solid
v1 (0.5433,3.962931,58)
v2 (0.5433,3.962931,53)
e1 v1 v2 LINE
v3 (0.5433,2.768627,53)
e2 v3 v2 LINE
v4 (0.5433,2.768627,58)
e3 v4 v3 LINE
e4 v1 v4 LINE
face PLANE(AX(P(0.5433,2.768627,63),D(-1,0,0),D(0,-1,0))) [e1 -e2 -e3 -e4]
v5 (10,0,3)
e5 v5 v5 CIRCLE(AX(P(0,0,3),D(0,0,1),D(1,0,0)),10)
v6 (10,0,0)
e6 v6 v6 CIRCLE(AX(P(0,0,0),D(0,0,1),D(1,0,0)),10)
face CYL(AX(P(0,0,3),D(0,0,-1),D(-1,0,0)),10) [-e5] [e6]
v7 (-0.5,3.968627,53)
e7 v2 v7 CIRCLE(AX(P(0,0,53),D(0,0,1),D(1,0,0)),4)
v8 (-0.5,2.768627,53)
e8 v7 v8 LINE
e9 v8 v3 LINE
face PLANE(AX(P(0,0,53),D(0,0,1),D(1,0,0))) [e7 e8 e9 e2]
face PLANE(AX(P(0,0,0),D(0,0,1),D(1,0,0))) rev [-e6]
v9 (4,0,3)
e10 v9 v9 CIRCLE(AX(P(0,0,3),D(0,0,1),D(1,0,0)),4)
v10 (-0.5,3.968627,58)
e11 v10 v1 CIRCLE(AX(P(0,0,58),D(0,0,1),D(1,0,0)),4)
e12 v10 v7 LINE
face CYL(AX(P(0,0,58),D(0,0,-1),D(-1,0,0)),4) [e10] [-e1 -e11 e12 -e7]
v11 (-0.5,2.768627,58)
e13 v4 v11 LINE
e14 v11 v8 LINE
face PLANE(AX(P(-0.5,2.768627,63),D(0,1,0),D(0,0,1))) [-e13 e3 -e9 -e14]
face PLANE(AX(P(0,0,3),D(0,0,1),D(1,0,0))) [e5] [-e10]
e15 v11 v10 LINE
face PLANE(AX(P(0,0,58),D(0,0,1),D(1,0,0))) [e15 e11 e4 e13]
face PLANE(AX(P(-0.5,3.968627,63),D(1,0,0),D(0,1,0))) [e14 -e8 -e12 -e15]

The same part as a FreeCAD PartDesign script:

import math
import FreeCAD as App
import Part
import Sketcher
Q = App.Units.Quantity

doc = App.newDocument("Part")
body = doc.addObject("PartDesign::Body", "Body")

# Sketch on XY plane
sketch1 = body.newObject("Sketcher::SketchObject", "Sketch")
sketch1.AttachmentSupport = (doc.getObject("XY_Plane"), [""])
sketch1.MapMode = "FlatFace"
sketch1.addGeometry(Part.Circle(App.Vector(0, 0, 0), App.Vector(0, 0, 1), 10), False)
sketch1.addConstraint(Sketcher.Constraint("Coincident", 0, 3, -1, 1))
sketch1.addConstraint(Sketcher.Constraint("Diameter", 0, Q("20 mm")))
pad1 = body.newObject("PartDesign::Pad", "Pad")
pad1.Profile = sketch1
pad1.Length = 3

# Sketch on XY plane
sketch2 = body.newObject("Sketcher::SketchObject", "Sketch001")
sketch2.AttachmentSupport = (doc.getObject("XY_Plane"), [""])
sketch2.MapMode = "FlatFace"
sketch2.AttachmentOffset = App.Placement(App.Vector(0, 0, 3), App.Rotation())
sketch2.addGeometry(Part.Circle(App.Vector(0, 0, 0), App.Vector(0, 0, 1), 4), False)
sketch2.addConstraint(Sketcher.Constraint("Coincident", 0, 3, -1, 1))
sketch2.addConstraint(Sketcher.Constraint("Diameter", 0, Q("8 mm")))
pad2 = body.newObject("PartDesign::Pad", "Pad001")
pad2.Profile = sketch2
pad2.Length = 55

# Sketch on XY plane
sketch3 = body.newObject("Sketcher::SketchObject", "Sketch002")
sketch3.AttachmentSupport = (doc.getObject("XY_Plane"), [""])
sketch3.MapMode = "FlatFace"
sketch3.AttachmentOffset = App.Placement(App.Vector(0, 0, 53), App.Rotation())
sketch3.addGeometry(Part.LineSegment(App.Vector(-0.5, 4, 0), App.Vector(-0.5, 2.8, 0)), False)
sketch3.addGeometry(Part.LineSegment(App.Vector(-0.5, 2.8, 0), App.Vector(0.5, 2.8, 0)), False)
sketch3.addGeometry(Part.LineSegment(App.Vector(0.5, 2.8, 0), App.Vector(0.5, 4, 0)), False)
sketch3.addGeometry(Part.ArcOfCircle(Part.Circle(App.Vector(0, 0, 0), App.Vector(0, 0, 1), 4), math.radians(82.19), math.radians(97.18)), False)
sketch3.addConstraint(Sketcher.Constraint("Coincident", 0, 2, 1, 1))
sketch3.addConstraint(Sketcher.Constraint("Coincident", 1, 2, 2, 1))
sketch3.addConstraint(Sketcher.Constraint("Coincident", 2, 2, 3, 1))
sketch3.addConstraint(Sketcher.Constraint("Coincident", 3, 2, 0, 1))
sketch3.addConstraint(Sketcher.Constraint("Vertical", 0))
sketch3.addConstraint(Sketcher.Constraint("Horizontal", 1))
sketch3.addConstraint(Sketcher.Constraint("Vertical", 2))
sketch3.addConstraint(Sketcher.Constraint("Coincident", 3, 3, -1, 1))
sketch3.addConstraint(Sketcher.Constraint("Radius", 3, Q("4 mm")))
sketch3.addConstraint(Sketcher.Constraint("DistanceY", 0, 2, 0, 1, Q("1.2 mm")))
sketch3.addConstraint(Sketcher.Constraint("DistanceX", 0, 2, -1, 1, Q("0.5 mm")))
sketch3.addConstraint(Sketcher.Constraint("DistanceX", 1, 1, 1, 2, Q("1.0433 mm")))
pocket1 = body.newObject("PartDesign::Pocket", "Pocket")
pocket1.Profile = sketch3
pocket1.Length = 10
pocket1.Reversed = True

doc.recompute()
